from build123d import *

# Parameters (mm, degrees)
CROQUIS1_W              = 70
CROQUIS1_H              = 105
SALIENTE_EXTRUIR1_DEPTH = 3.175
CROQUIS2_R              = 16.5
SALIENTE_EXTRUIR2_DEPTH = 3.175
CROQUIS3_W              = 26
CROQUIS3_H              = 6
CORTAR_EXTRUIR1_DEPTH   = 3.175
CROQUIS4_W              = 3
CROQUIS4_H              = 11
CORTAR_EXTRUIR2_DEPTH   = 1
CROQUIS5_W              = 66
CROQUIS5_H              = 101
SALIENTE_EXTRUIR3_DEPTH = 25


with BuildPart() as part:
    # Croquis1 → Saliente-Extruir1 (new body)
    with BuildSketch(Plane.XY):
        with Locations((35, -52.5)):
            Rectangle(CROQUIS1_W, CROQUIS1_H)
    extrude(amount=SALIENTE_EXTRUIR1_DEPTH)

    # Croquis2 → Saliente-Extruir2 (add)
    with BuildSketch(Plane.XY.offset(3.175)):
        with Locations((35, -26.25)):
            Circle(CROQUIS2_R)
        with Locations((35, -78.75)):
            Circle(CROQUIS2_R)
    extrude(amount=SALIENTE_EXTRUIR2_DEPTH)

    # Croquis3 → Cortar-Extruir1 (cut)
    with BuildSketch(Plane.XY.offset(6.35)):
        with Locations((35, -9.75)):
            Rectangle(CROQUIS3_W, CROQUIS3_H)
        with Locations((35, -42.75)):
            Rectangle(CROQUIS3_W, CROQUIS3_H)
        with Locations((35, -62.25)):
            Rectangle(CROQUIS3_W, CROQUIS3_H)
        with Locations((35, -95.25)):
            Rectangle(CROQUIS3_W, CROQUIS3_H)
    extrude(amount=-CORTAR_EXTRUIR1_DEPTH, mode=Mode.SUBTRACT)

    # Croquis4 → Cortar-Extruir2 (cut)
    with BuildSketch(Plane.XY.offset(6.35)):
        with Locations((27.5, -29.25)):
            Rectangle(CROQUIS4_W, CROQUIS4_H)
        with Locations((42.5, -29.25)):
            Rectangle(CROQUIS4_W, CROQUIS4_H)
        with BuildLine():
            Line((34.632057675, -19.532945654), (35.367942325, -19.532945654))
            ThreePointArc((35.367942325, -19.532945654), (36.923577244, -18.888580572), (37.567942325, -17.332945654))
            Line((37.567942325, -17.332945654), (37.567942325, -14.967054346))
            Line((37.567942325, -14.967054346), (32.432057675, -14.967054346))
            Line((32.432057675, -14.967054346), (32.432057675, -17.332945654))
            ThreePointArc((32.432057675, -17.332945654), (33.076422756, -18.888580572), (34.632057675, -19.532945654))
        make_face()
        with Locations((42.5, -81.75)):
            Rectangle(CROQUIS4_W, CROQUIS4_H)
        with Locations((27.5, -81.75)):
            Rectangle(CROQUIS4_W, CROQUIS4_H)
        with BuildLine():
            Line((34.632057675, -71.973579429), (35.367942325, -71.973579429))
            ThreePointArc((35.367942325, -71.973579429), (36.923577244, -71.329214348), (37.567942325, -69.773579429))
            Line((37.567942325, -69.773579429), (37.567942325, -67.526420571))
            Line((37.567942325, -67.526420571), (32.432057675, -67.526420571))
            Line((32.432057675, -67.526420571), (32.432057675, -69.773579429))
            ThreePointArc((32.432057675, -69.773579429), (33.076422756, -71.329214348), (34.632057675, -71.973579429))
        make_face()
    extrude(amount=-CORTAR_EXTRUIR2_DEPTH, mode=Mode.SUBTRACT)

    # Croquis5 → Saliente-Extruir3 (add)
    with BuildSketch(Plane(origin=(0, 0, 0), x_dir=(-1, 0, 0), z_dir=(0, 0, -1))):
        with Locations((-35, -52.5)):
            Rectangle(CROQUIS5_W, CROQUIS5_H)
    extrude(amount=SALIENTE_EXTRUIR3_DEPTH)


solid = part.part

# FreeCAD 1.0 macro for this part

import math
import FreeCAD as App
import Part
import Sketcher
from FreeCAD import Vector


def add_polygon(sketch, points):
    """Adds a closed chain of lines whose ends are joined by coincident constraints."""
    first, n = sketch.GeometryCount, len(points)
    for a, b in zip(points, points[1:] + points[:1]):
        sketch.addGeometry(Part.LineSegment(App.Vector(*a, 0), App.Vector(*b, 0)), False)
    for i in range(n):
        sketch.addConstraint(Sketcher.Constraint("Coincident", first + i, 2, first + (i + 1) % n, 1))

doc = App.newDocument("Part")
body = doc.addObject("PartDesign::Body", "Body")

# Sketch on XY plane
sketch1 = doc.addObject("Sketcher::SketchObject", "Sketch")
body.addObject(sketch1)
sketch1.AttachmentSupport = (doc.XY_Plane, [""])
sketch1.MapMode = "FlatFace"
add_polygon(sketch1, [(0, 0), (0, -105), (70, -105), (70, 0)])  # lines 0-3
sketch1.addConstraint([
    Sketcher.Constraint("Vertical", 0),
    Sketcher.Constraint("Horizontal", 1),
    Sketcher.Constraint("Vertical", 2),
    Sketcher.Constraint("Horizontal", 3),
    Sketcher.Constraint("Coincident", 3, 2, -1, 1),
    Sketcher.Constraint("DistanceX", 1, 1, 1, 2, 70.0),
    Sketcher.Constraint("DistanceY", 0, 2, 0, 1, 105.0),
])
pad1 = doc.addObject("PartDesign::Pad", "Pad")
body.addObject(pad1)
pad1.Profile = sketch1
pad1.Length = 3.175

# Sketch on XY plane
sketch2 = doc.addObject("Sketcher::SketchObject", "Sketch001")
body.addObject(sketch2)
sketch2.AttachmentSupport = (doc.XY_Plane, [""])
sketch2.MapMode = "FlatFace"
sketch2.AttachmentOffset = App.Placement(Vector(0, 0, 3.175), App.Rotation())
sketch2.addGeometry([
    Part.Circle(Vector(35, -26, 0), Vector(0, 0, 1), 16),
    Part.Circle(Vector(35, -79, 0), Vector(0, 0, 1), 16),
], False)
sketch2.addConstraint([
    Sketcher.Constraint("Equal", 0, 1),
    Sketcher.Constraint("Vertical", 0, 3, 1, 3),
    Sketcher.Constraint("Diameter", 0, 33.0),
    Sketcher.Constraint("DistanceX", -1, 1, 0, 3, 35.0),
    Sketcher.Constraint("DistanceY", 1, 3, 0, 3, 52.5),
    Sketcher.Constraint("DistanceY", 0, 3, -1, 1, 26.25),
])
pad2 = doc.addObject("PartDesign::Pad", "Pad001")
body.addObject(pad2)
pad2.Profile = sketch2
pad2.Length = 3.175

# Sketch on XY plane
sketch3 = doc.addObject("Sketcher::SketchObject", "Sketch002")
body.addObject(sketch3)
sketch3.AttachmentSupport = (doc.XY_Plane, [""])
sketch3.MapMode = "FlatFace"
sketch3.AttachmentOffset = App.Placement(Vector(0, 0, 6.35), App.Rotation())
add_polygon(sketch3, [(22, -7), (22, -13), (48, -13), (48, -7)])  # lines 0-3
add_polygon(sketch3, [(22, -40), (22, -46), (48, -46), (48, -40)])  # lines 4-7
add_polygon(sketch3, [(22, -59), (22, -65), (48, -65), (48, -59)])  # lines 8-11
add_polygon(sketch3, [(22, -92), (22, -98), (48, -98), (48, -92)])  # lines 12-15
sketch3.addConstraint([
    Sketcher.Constraint("Vertical", 0),
    Sketcher.Constraint("Horizontal", 1),
    Sketcher.Constraint("Vertical", 2),
    Sketcher.Constraint("Horizontal", 3),
    Sketcher.Constraint("Vertical", 4),
    Sketcher.Constraint("Horizontal", 5),
    Sketcher.Constraint("Vertical", 6),
    Sketcher.Constraint("Horizontal", 7),
    Sketcher.Constraint("Vertical", 8),
    Sketcher.Constraint("Horizontal", 9),
    Sketcher.Constraint("Vertical", 10),
    Sketcher.Constraint("Horizontal", 11),
    Sketcher.Constraint("Vertical", 12),
    Sketcher.Constraint("Horizontal", 13),
    Sketcher.Constraint("Vertical", 14),
    Sketcher.Constraint("Horizontal", 15),
    Sketcher.Constraint("Vertical", 3, 2, 4, 2),
    Sketcher.Constraint("Vertical", 2, 2, 5, 2),
    Sketcher.Constraint("Vertical", 7, 2, 8, 2),
    Sketcher.Constraint("Vertical", 6, 2, 9, 2),
    Sketcher.Constraint("Vertical", 11, 2, 12, 2),
    Sketcher.Constraint("Vertical", 10, 2, 13, 2),
    Sketcher.Constraint("Equal", 2, 4),
    Sketcher.Constraint("Equal", 6, 8),
    Sketcher.Constraint("Equal", 10, 12),
    Sketcher.Constraint("DistanceX", 1, 1, 1, 2, 26.0),
    Sketcher.Constraint("DistanceY", 0, 2, 0, 1, 6.0),
    Sketcher.Constraint("DistanceX", -1, 1, 0, 2, 22.0),
    Sketcher.Constraint("DistanceY", 4, 2, 0, 2, 33.0),
    Sketcher.Constraint("DistanceY", 12, 2, 8, 2, 33.0),
    Sketcher.Constraint("DistanceY", 8, 2, 4, 2, 19.5),
    Sketcher.Constraint("DistanceY", 0, 2, -1, 1, 12.75),
])
pocket1 = doc.addObject("PartDesign::Pocket", "Pocket")
body.addObject(pocket1)
pocket1.Profile = sketch3
pocket1.Length = 3.175

# Sketch on XY plane
sketch4 = doc.addObject("Sketcher::SketchObject", "Sketch003")
body.addObject(sketch4)
sketch4.AttachmentSupport = (doc.XY_Plane, [""])
sketch4.MapMode = "FlatFace"
sketch4.AttachmentOffset = App.Placement(Vector(0, 0, 6.35), App.Rotation())
add_polygon(sketch4, [(26, -23.8), (26, -34.8), (29, -34.8), (29, -23.8)])  # lines 0-3
add_polygon(sketch4, [(41, -23.8), (41, -34.8), (44, -34.8), (44, -23.8)])  # lines 4-7
sketch4.addGeometry(Part.LineSegment(Vector(34.6, -19.5, 0), Vector(35.4, -19.5, 0)), False)  # 8
sketch4.addGeometry(Part.ArcOfCircle(Part.Circle(Vector(35.4, -17.3, 0), Vector(0, 0, 1), 2.2), math.radians(-90), math.radians(0)), False)  # 9
sketch4.addGeometry(Part.LineSegment(Vector(37.6, -17.3, 0), Vector(37.6, -15, 0)), False)  # 10
sketch4.addGeometry(Part.LineSegment(Vector(37.6, -15, 0), Vector(32.4, -15, 0)), False)  # 11
sketch4.addGeometry(Part.LineSegment(Vector(32.4, -15, 0), Vector(32.4, -17.3, 0)), False)  # 12
sketch4.addGeometry(Part.ArcOfCircle(Part.Circle(Vector(34.6, -17.3, 0), Vector(0, 0, 1), 2.2), math.radians(180), math.radians(270)), False)  # 13
add_polygon(sketch4, [(41, -76.2), (41, -87.2), (44, -87.2), (44, -76.2)])  # lines 14-17
add_polygon(sketch4, [(26, -76.2), (26, -87.2), (29, -87.2), (29, -76.2)])  # lines 18-21
sketch4.addGeometry(Part.LineSegment(Vector(34.6, -72, 0), Vector(35.4, -72, 0)), False)  # 22
sketch4.addGeometry(Part.ArcOfCircle(Part.Circle(Vector(35.4, -69.8, 0), Vector(0, 0, 1), 2.2), math.radians(-90), math.radians(0)), False)  # 23
sketch4.addGeometry(Part.LineSegment(Vector(37.6, -69.8, 0), Vector(37.6, -67.5, 0)), False)  # 24
sketch4.addGeometry(Part.LineSegment(Vector(37.6, -67.5, 0), Vector(32.4, -67.5, 0)), False)  # 25
sketch4.addGeometry(Part.LineSegment(Vector(32.4, -67.5, 0), Vector(32.4, -69.8, 0)), False)  # 26
sketch4.addGeometry(Part.ArcOfCircle(Part.Circle(Vector(34.6, -69.8, 0), Vector(0, 0, 1), 2.2), math.radians(180), math.radians(270)), False)  # 27
sketch4.addConstraint([
    Sketcher.Constraint("Tangent", 8, 2, 9, 1),
    Sketcher.Constraint("Tangent", 9, 2, 10, 1),
    Sketcher.Constraint("Coincident", 10, 2, 11, 1),
    Sketcher.Constraint("Coincident", 11, 2, 12, 1),
    Sketcher.Constraint("Tangent", 12, 2, 13, 1),
    Sketcher.Constraint("Tangent", 13, 2, 8, 1),
    Sketcher.Constraint("Tangent", 22, 2, 23, 1),
    Sketcher.Constraint("Tangent", 23, 2, 24, 1),
    Sketcher.Constraint("Coincident", 24, 2, 25, 1),
    Sketcher.Constraint("Coincident", 25, 2, 26, 1),
    Sketcher.Constraint("Tangent", 26, 2, 27, 1),
    Sketcher.Constraint("Tangent", 27, 2, 22, 1),
    Sketcher.Constraint("Vertical", 0),
    Sketcher.Constraint("Horizontal", 1),
    Sketcher.Constraint("Vertical", 2),
    Sketcher.Constraint("Horizontal", 3),
    Sketcher.Constraint("Vertical", 4),
    Sketcher.Constraint("Horizontal", 5),
    Sketcher.Constraint("Vertical", 6),
    Sketcher.Constraint("Horizontal", 7),
    Sketcher.Constraint("Horizontal", 8),
    Sketcher.Constraint("Vertical", 10),
    Sketcher.Constraint("Horizontal", 11),
    Sketcher.Constraint("Vertical", 12),
    Sketcher.Constraint("Vertical", 14),
    Sketcher.Constraint("Horizontal", 15),
    Sketcher.Constraint("Vertical", 16),
    Sketcher.Constraint("Horizontal", 17),
    Sketcher.Constraint("Vertical", 18),
    Sketcher.Constraint("Horizontal", 19),
    Sketcher.Constraint("Vertical", 20),
    Sketcher.Constraint("Horizontal", 21),
    Sketcher.Constraint("Horizontal", 22),
    Sketcher.Constraint("Vertical", 24),
    Sketcher.Constraint("Horizontal", 25),
    Sketcher.Constraint("Vertical", 26),
    Sketcher.Constraint("Equal", 9, 13),
    Sketcher.Constraint("Equal", 13, 23),
    Sketcher.Constraint("Equal", 23, 27),
    Sketcher.Constraint("Horizontal", 1, 2, 4, 2),
    Sketcher.Constraint("Horizontal", 3, 2, 6, 2),
    Sketcher.Constraint("Horizontal", 15, 2, 18, 2),
    Sketcher.Constraint("Horizontal", 17, 2, 20, 2),
    Sketcher.Constraint("Vertical", 9, 3, 23, 3),
    Sketcher.Constraint("Vertical", 13, 3, 27, 3),
    Sketcher.Constraint("Vertical", 7, 2, 14, 2),
    Sketcher.Constraint("Vertical", 6, 2, 15, 2),
    Sketcher.Constraint("Vertical", 3, 2, 18, 2),
    Sketcher.Constraint("Vertical", 2, 2, 19, 2),
    Sketcher.Constraint("Equal", 3, 5),
    Sketcher.Constraint("Equal", 6, 14),
    Sketcher.Constraint("Radius", 9, 2.2),
    Sketcher.Constraint("DistanceX", 1, 1, 1, 2, 3.0),
    Sketcher.Constraint("DistanceY", 0, 2, 0, 1, 11.0),
    Sketcher.Constraint("DistanceX", -1, 1, 0, 2, 26.0),
    Sketcher.Constraint("DistanceX", -1, 1, 4, 2, 41.0),
    Sketcher.Constraint("DistanceY", 14, 2, 4, 2, 52.5),
    Sketcher.Constraint("DistanceY", 0, 2, -1, 1, 34.75),
    Sketcher.Constraint("DistanceY", 10, 1, 10, 2, 2.365891),
    Sketcher.Constraint("DistanceY", 24, 1, 24, 2, 2.247159),
    Sketcher.Constraint("DistanceX", 8, 1, 8, 2, 0.735885),
    Sketcher.Constraint("DistanceY", 23, 3, -1, 1, 69.773579),
    Sketcher.Constraint("DistanceX", -1, 1, 9, 3, 35.367942),
    Sketcher.Constraint("DistanceY", 9, 3, -1, 1, 17.332946),
])
pocket2 = doc.addObject("PartDesign::Pocket", "Pocket001")
body.addObject(pocket2)
pocket2.Profile = sketch4
pocket2.Length = 1

# Sketch on XY plane
sketch5 = doc.addObject("Sketcher::SketchObject", "Sketch004")
body.addObject(sketch5)
sketch5.AttachmentSupport = (doc.XY_Plane, [""])
sketch5.MapMode = "FlatFace"
add_polygon(sketch5, [(68, -2), (68, -103), (2, -103), (2, -2)])  # lines 0-3
sketch5.addConstraint([
    Sketcher.Constraint("Vertical", 0),
    Sketcher.Constraint("Horizontal", 1),
    Sketcher.Constraint("Vertical", 2),
    Sketcher.Constraint("Horizontal", 3),
    Sketcher.Constraint("DistanceX", 1, 2, 1, 1, 66.0),
    Sketcher.Constraint("DistanceY", 0, 2, 0, 1, 101.0),
    Sketcher.Constraint("DistanceX", -1, 1, 0, 2, 68.0),
    Sketcher.Constraint("DistanceY", 0, 2, -1, 1, 103.0),
])
pad3 = doc.addObject("PartDesign::Pad", "Pad002")
body.addObject(pad3)
pad3.Profile = sketch5
pad3.Length = 25
pad3.Reversed = True

doc.recompute()
